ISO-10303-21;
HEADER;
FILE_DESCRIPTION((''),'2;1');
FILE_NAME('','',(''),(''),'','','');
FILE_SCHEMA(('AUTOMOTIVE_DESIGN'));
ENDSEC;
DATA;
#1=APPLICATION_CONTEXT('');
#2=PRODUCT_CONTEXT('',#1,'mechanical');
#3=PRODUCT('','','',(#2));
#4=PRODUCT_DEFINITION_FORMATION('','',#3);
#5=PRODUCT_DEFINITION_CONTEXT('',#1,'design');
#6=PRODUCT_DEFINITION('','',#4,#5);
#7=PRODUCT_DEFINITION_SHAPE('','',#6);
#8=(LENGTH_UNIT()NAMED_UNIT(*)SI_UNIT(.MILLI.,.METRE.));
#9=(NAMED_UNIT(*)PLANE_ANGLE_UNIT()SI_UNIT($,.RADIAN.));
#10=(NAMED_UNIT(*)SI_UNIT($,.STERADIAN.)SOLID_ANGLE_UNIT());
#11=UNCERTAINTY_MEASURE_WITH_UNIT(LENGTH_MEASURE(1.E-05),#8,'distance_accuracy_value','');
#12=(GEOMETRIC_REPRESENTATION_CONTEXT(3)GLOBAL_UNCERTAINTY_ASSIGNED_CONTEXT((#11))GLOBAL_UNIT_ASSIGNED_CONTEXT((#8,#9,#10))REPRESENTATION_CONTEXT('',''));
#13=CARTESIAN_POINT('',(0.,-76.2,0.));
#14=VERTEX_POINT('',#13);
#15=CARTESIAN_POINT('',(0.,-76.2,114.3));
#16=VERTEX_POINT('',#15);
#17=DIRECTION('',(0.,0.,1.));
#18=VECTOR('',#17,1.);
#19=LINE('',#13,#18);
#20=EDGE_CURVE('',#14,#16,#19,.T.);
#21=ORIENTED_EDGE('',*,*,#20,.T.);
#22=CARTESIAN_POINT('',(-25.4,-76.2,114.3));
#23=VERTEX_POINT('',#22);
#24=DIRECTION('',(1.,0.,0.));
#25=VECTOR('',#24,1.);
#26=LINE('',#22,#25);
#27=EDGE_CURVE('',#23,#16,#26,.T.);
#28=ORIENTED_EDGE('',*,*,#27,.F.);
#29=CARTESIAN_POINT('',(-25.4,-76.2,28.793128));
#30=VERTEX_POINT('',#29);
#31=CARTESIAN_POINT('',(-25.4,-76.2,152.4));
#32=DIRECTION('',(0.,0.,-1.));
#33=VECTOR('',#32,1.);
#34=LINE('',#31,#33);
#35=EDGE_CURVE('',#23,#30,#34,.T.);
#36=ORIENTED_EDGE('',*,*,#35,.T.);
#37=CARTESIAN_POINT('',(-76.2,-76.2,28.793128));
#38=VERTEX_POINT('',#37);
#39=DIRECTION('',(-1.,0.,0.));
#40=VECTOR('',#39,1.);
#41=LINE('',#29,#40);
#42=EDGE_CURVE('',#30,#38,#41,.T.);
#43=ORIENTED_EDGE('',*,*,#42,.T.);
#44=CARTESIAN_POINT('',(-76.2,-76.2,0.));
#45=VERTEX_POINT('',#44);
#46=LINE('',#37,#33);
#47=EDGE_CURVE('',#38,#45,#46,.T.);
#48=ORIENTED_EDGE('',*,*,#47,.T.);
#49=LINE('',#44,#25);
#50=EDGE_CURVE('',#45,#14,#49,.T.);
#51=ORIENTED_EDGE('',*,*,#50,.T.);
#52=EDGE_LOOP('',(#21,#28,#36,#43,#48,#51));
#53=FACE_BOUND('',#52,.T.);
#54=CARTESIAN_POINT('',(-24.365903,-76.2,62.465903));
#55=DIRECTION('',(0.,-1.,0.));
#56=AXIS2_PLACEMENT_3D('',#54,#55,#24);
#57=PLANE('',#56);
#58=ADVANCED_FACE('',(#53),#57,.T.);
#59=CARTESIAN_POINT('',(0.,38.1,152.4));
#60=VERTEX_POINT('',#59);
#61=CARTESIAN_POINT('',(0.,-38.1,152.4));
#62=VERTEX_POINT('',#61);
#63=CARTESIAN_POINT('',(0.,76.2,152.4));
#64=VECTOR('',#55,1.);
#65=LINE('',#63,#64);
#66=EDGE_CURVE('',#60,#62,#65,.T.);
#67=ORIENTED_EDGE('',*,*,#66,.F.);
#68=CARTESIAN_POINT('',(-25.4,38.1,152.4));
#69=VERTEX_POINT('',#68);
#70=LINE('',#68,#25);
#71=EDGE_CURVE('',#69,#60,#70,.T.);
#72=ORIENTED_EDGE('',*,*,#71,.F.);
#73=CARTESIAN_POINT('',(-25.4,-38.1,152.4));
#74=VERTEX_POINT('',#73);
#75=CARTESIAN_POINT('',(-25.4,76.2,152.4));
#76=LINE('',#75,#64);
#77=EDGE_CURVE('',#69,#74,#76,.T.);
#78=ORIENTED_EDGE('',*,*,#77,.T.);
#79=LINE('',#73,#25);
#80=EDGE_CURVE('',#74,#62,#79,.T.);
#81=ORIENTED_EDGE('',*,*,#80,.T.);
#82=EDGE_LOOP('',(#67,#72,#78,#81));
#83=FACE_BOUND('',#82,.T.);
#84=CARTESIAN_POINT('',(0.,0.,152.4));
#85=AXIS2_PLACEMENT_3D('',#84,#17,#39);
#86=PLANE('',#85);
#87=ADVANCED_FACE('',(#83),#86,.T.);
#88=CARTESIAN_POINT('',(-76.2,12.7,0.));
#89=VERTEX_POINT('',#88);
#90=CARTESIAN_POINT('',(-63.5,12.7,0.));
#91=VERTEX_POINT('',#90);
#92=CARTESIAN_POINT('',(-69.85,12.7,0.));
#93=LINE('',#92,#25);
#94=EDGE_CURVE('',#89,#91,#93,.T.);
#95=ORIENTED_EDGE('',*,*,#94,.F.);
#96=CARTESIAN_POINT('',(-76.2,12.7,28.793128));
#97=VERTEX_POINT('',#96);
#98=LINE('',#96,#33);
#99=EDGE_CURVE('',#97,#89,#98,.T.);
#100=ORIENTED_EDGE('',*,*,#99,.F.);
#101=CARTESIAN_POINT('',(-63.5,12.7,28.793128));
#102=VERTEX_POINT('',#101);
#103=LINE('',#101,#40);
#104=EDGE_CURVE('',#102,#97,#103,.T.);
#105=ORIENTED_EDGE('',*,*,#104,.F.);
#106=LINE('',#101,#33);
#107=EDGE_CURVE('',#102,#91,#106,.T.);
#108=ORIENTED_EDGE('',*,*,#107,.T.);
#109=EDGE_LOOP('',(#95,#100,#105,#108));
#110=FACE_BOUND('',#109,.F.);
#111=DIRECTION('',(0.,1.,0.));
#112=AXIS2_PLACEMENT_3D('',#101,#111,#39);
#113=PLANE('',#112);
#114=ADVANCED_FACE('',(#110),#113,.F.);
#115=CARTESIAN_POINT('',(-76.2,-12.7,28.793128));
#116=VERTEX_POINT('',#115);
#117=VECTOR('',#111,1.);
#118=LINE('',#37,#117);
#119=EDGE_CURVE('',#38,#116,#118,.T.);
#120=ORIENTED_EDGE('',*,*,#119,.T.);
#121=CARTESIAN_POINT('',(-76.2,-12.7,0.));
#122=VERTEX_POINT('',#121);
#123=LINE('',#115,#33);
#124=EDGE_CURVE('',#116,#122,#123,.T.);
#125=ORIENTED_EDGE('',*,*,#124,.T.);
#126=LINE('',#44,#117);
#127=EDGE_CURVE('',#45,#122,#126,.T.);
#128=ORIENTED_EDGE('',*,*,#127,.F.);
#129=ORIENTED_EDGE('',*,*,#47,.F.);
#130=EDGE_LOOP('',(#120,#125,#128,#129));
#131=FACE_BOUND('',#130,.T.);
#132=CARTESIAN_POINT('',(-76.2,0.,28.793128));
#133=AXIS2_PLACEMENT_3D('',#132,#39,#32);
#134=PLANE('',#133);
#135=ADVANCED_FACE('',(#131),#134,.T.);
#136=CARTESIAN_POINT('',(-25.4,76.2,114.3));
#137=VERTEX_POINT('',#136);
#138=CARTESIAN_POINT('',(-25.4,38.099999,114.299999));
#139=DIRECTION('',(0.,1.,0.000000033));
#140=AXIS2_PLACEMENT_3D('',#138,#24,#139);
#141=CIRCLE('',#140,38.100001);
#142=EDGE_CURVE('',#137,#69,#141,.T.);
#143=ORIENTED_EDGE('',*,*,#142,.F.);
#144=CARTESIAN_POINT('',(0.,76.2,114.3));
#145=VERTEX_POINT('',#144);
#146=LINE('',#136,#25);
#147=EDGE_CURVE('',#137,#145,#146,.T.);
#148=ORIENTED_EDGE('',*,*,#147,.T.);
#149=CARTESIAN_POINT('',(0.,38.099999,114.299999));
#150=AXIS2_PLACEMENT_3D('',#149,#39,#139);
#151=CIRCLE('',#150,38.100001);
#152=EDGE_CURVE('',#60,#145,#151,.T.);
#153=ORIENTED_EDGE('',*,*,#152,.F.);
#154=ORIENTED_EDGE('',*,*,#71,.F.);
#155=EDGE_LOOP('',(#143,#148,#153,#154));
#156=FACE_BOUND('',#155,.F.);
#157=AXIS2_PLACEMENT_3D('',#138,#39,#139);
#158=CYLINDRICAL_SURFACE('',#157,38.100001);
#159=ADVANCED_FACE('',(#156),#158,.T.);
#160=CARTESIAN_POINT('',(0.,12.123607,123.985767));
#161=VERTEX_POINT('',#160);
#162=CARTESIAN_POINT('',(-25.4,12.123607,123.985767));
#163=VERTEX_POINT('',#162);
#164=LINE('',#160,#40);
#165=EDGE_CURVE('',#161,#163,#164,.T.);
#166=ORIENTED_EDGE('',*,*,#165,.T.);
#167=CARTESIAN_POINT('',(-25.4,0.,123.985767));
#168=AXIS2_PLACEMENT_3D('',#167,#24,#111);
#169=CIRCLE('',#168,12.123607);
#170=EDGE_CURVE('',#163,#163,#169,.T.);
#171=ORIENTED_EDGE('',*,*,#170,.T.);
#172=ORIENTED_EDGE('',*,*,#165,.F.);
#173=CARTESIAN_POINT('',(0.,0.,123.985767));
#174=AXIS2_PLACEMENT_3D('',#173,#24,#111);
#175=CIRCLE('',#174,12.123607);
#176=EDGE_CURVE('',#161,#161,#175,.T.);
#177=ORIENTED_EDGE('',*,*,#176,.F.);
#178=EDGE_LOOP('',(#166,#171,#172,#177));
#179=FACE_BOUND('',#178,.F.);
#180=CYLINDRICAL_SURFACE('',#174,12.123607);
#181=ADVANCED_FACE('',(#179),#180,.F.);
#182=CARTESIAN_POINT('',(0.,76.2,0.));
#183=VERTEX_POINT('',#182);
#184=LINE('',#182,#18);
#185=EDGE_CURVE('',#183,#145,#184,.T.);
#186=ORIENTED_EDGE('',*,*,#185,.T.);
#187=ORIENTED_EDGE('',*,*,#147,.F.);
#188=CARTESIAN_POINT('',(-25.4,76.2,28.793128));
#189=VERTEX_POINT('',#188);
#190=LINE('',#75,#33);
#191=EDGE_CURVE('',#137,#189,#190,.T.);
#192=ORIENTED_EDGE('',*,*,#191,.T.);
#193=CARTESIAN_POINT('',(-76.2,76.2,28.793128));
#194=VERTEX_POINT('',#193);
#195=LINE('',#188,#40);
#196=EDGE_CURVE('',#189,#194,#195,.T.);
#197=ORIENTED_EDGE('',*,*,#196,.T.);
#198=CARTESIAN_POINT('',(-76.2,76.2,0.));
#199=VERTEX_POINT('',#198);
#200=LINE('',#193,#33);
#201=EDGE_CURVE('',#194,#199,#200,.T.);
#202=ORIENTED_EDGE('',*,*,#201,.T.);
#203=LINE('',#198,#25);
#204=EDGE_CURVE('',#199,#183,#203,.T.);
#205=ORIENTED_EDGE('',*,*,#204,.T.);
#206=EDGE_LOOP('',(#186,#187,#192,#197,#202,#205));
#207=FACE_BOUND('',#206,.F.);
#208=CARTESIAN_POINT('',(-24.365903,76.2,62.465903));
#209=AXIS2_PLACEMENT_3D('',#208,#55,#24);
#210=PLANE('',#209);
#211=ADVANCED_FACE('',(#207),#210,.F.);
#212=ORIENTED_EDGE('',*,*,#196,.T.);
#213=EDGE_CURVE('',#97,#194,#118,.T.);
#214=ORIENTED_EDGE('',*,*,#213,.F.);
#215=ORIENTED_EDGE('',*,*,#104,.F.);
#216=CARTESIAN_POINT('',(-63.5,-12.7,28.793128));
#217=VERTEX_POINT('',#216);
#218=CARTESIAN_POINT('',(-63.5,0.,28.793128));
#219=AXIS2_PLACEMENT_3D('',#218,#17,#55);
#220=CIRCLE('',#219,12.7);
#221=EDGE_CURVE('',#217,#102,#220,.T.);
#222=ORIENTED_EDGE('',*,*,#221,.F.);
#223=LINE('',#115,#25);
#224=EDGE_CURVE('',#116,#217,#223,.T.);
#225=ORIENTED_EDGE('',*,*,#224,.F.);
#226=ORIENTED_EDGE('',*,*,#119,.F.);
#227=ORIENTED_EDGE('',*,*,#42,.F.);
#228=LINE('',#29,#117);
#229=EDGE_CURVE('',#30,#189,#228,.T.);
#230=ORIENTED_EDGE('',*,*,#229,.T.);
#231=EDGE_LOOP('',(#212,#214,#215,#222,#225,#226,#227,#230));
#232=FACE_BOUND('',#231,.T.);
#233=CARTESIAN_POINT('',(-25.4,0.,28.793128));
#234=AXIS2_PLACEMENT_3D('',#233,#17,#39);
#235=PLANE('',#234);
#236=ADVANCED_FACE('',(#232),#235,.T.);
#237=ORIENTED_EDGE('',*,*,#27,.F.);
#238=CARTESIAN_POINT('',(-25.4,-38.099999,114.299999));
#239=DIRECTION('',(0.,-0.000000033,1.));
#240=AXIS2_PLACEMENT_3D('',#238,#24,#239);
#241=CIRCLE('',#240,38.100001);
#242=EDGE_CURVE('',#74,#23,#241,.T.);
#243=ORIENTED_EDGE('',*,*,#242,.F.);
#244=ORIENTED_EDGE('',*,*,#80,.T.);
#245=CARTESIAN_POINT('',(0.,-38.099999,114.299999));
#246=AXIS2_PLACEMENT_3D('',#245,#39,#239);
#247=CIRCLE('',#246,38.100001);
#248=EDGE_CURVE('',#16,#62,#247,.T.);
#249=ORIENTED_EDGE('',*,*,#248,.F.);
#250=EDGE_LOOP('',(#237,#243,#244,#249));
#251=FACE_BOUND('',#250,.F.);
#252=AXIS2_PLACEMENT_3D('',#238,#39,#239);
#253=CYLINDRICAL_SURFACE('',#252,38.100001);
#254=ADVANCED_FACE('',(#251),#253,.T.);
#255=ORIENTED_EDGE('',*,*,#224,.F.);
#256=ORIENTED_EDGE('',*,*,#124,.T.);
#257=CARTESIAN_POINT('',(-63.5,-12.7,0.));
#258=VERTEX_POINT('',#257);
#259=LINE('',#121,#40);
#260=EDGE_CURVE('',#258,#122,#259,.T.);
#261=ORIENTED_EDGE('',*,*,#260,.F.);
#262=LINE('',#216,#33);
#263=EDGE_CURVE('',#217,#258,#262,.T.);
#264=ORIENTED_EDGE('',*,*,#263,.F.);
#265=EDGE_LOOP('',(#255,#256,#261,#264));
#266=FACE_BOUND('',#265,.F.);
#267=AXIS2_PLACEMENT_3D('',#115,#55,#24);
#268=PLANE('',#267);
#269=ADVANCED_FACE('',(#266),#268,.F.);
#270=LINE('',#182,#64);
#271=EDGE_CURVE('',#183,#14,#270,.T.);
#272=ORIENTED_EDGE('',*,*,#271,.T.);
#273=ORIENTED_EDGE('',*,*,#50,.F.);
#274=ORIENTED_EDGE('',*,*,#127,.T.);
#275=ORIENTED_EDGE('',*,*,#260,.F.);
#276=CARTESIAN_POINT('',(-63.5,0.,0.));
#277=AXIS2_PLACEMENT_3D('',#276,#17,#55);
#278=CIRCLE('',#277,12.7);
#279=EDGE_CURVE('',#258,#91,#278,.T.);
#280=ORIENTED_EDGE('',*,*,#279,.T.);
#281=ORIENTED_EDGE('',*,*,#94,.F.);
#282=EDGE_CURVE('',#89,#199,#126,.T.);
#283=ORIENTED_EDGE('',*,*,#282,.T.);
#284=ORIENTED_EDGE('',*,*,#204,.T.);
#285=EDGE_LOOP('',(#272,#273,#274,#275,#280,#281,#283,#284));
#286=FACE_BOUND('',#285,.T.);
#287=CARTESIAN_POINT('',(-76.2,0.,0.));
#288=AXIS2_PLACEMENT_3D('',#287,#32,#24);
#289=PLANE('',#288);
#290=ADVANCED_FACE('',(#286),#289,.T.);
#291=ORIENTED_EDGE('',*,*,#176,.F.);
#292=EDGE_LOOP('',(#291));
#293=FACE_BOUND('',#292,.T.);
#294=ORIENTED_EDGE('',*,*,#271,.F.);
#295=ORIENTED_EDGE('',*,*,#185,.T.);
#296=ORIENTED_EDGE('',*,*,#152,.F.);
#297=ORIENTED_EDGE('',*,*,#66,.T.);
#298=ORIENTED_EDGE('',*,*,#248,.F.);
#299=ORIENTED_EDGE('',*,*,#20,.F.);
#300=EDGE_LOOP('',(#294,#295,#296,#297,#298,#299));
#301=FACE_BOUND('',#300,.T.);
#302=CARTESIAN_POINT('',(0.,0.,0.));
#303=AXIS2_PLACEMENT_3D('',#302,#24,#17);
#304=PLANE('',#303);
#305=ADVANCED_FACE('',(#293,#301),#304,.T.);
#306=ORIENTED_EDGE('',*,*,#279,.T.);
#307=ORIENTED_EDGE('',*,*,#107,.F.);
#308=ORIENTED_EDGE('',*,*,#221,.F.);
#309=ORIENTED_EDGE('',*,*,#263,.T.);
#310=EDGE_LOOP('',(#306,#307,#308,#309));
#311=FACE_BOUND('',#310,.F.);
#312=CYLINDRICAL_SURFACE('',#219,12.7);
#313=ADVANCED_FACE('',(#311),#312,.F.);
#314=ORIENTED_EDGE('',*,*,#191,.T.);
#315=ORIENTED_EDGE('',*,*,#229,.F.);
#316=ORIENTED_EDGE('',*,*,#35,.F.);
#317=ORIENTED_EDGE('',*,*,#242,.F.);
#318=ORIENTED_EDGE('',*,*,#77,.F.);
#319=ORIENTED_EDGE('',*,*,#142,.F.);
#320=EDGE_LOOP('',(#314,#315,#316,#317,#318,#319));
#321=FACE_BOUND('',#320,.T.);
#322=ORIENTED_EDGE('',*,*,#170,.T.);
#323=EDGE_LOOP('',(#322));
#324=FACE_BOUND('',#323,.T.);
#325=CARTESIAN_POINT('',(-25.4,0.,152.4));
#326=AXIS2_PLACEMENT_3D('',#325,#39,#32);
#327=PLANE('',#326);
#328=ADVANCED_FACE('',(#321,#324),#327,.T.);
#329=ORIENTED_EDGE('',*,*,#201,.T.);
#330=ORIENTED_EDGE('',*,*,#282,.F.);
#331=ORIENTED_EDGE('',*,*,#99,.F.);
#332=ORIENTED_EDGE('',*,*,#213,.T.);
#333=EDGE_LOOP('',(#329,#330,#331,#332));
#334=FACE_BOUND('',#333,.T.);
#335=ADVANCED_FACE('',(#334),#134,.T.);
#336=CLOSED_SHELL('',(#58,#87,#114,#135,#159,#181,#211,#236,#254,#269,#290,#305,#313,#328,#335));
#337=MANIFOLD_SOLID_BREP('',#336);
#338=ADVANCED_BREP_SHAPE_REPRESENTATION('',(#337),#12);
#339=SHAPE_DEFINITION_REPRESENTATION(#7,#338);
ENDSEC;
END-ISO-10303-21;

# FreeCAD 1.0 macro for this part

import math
import FreeCAD as App
import Part
import Sketcher
Q = App.Units.Quantity

doc = App.newDocument("Part")
body = doc.addObject("PartDesign::Body", "Body")

# Sketch on XZ plane
sketch1 = body.newObject("Sketcher::SketchObject", "Sketch")
sketch1.AttachmentSupport = (doc.getObject("XZ_Plane"), [""])
sketch1.MapMode = "FlatFace"
sketch1.addGeometry([
    Part.LineSegment(App.Vector(-76, 0, 0), App.Vector(0, 0, 0)),  # 0
    Part.LineSegment(App.Vector(0, 0, 0), App.Vector(0, 152, 0)),  # 1
    Part.LineSegment(App.Vector(0, 152, 0), App.Vector(-25, 152, 0)),  # 2
    Part.LineSegment(App.Vector(-25, 152, 0), App.Vector(-25, 29, 0)),  # 3
    Part.LineSegment(App.Vector(-25, 29, 0), App.Vector(-76, 29, 0)),  # 4
    Part.LineSegment(App.Vector(-76, 29, 0), App.Vector(-76, 0, 0)),  # 5
], False)
sketch1.addConstraint([
    Sketcher.Constraint("Coincident", 0, 2, 1, 1),
    Sketcher.Constraint("Coincident", 1, 2, 2, 1),
    Sketcher.Constraint("Coincident", 2, 2, 3, 1),
    Sketcher.Constraint("Coincident", 3, 2, 4, 1),
    Sketcher.Constraint("Coincident", 4, 2, 5, 1),
    Sketcher.Constraint("Coincident", 5, 2, 0, 1),
    Sketcher.Constraint("Horizontal", 0),
    Sketcher.Constraint("Vertical", 1),
    Sketcher.Constraint("Horizontal", 2),
    Sketcher.Constraint("Vertical", 3),
    Sketcher.Constraint("Horizontal", 4),
    Sketcher.Constraint("Vertical", 5),
    Sketcher.Constraint("Coincident", 0, 2, -1, 1),
    Sketcher.Constraint("DistanceX", 0, 1, 0, 2, Q("3 in")),
    Sketcher.Constraint("DistanceX", 2, 2, 2, 1, Q("1 in")),
    Sketcher.Constraint("DistanceY", 1, 1, 1, 2, Q("6 in")),
    Sketcher.Constraint("DistanceY", 3, 2, 3, 1, Q("123.606872 mm")),
])
pad1 = body.newObject("PartDesign::Pad", "Pad")
pad1.Profile = sketch1
pad1.Length = Q("6 in")
pad1.Midplane = True

# Sketch on YZ plane
sketch2 = body.newObject("Sketcher::SketchObject", "Sketch001")
sketch2.AttachmentSupport = (doc.getObject("YZ_Plane"), [""])
sketch2.MapMode = "FlatFace"
sketch2.addGeometry([
    Part.LineSegment(App.Vector(-76, 152, 0), App.Vector(-76, 0, 0)),
    Part.LineSegment(App.Vector(-76, 0, 0), App.Vector(76, 0, 0)),
    Part.LineSegment(App.Vector(76, 0, 0), App.Vector(76, 152, 0)),
    Part.LineSegment(App.Vector(76, 152, 0), App.Vector(-76, 152, 0)),
], False)
sketch2.addConstraint([
    Sketcher.Constraint("Coincident", 0, 2, 1, 1),
    Sketcher.Constraint("Coincident", 1, 2, 2, 1),
    Sketcher.Constraint("Coincident", 2, 2, 3, 1),
    Sketcher.Constraint("Coincident", 3, 2, 0, 1),
    Sketcher.Constraint("Vertical", 0),
    Sketcher.Constraint("Horizontal", 1),
    Sketcher.Constraint("Vertical", 2),
    Sketcher.Constraint("Horizontal", 3),
    Sketcher.Constraint("Symmetric", 0, 2, 1, 2, -1, 1),
    Sketcher.Constraint("Equal", 3, 0),
    Sketcher.Constraint("DistanceX", 1, 1, 1, 2, Q("6 in")),
])
pocket1 = body.newObject("PartDesign::Pocket", "Pocket")
pocket1.Profile = sketch2
pocket1.Length = Q("1 in")
pocket1.Reversed = True

# Sketch on YZ plane
sketch3 = body.newObject("Sketcher::SketchObject", "Sketch002")
sketch3.AttachmentSupport = (doc.getObject("YZ_Plane"), [""])
sketch3.MapMode = "FlatFace"
sketch3.addGeometry(Part.Circle(App.Vector(0, 124, 0), App.Vector(0, 0, 1), 12), False)
sketch3.addConstraint([
    Sketcher.Constraint("PointOnObject", 0, 3, -2),
    Sketcher.Constraint("Diameter", 0, Q("24.247214 mm")),
    Sketcher.Constraint("DistanceY", -1, 1, 0, 3, Q("123.985767 mm")),
])
pocket2 = body.newObject("PartDesign::Pocket", "Pocket001")
pocket2.Profile = sketch3
pocket2.Type = "ThroughAll"

# Sketch on XY plane
sketch4 = body.newObject("Sketcher::SketchObject", "Sketch003")
sketch4.AttachmentSupport = (doc.getObject("XY_Plane"), [""])
sketch4.MapMode = "FlatFace"
sketch4.AttachmentOffset = App.Placement(App.Vector(0, 0, 28.793128), App.Rotation())
sketch4.addGeometry([
    Part.LineSegment(App.Vector(-64, 13, 0), App.Vector(-76, 13, 0)),
    Part.LineSegment(App.Vector(-76, 13, 0), App.Vector(-76, -13, 0)),
    Part.LineSegment(App.Vector(-76, -13, 0), App.Vector(-64, -13, 0)),
    Part.ArcOfCircle(Part.Circle(App.Vector(-64, 0, 0), App.Vector(0, 0, 1), 13), math.radians(-90), math.radians(90)),
], False)
sketch4.addConstraint([
    Sketcher.Constraint("Coincident", 0, 2, 1, 1),
    Sketcher.Constraint("Coincident", 1, 2, 2, 1),
    Sketcher.Constraint("Tangent", 2, 2, 3, 1),
    Sketcher.Constraint("Tangent", 3, 2, 0, 1),
    Sketcher.Constraint("Horizontal", 0),
    Sketcher.Constraint("Vertical", 1),
    Sketcher.Constraint("Horizontal", 2),
    Sketcher.Constraint("PointOnObject", 3, 3, -1),
    Sketcher.Constraint("Radius", 3, Q("0.5 in")),
    Sketcher.Constraint("DistanceX", 0, 2, 0, 1, Q("0.5 in")),
    Sketcher.Constraint("DistanceX", 0, 2, -1, 1, Q("3 in")),
])
pocket3 = body.newObject("PartDesign::Pocket", "Pocket002")
pocket3.Profile = sketch4
pocket3.Type = "ThroughAll"

# Sketch on YZ plane
sketch5 = body.newObject("Sketcher::SketchObject", "Sketch004")
sketch5.AttachmentSupport = (doc.getObject("YZ_Plane"), [""])
sketch5.MapMode = "FlatFace"
sketch5.AttachmentOffset = App.Placement(App.Vector(0, 0, -1 * 25.4), App.Rotation())
sketch5.addGeometry([
    Part.ArcOfCircle(Part.Circle(App.Vector(-38, 114, 0), App.Vector(0, 0, 1), 38), math.radians(90), math.radians(180)),  # 0
    Part.LineSegment(App.Vector(-76, 114, 0), App.Vector(-76, 152, 0)),  # 1
    Part.LineSegment(App.Vector(-76, 152, 0), App.Vector(-38, 152, 0)),  # 2
    Part.ArcOfCircle(Part.Circle(App.Vector(38, 114, 0), App.Vector(0, 0, 1), 38), math.radians(0), math.radians(90)),  # 3
    Part.LineSegment(App.Vector(38, 152, 0), App.Vector(76, 152, 0)),  # 4
    Part.LineSegment(App.Vector(76, 152, 0), App.Vector(76, 114, 0)),  # 5
], False)
sketch5.addConstraint([
    Sketcher.Constraint("Tangent", 0, 2, 1, 1),
    Sketcher.Constraint("Coincident", 1, 2, 2, 1),
    Sketcher.Constraint("Tangent", 2, 2, 0, 1),
    Sketcher.Constraint("Tangent", 3, 2, 4, 1),
    Sketcher.Constraint("Coincident", 4, 2, 5, 1),
    Sketcher.Constraint("Tangent", 5, 2, 3, 1),
    Sketcher.Constraint("Vertical", 1),
    Sketcher.Constraint("Horizontal", 2),
    Sketcher.Constraint("Horizontal", 4),
    Sketcher.Constraint("Vertical", 5),
    Sketcher.Constraint("Equal", 0, 3),
    Sketcher.Constraint("Symmetric", 0, 3, 3, 3, -2),
    Sketcher.Constraint("Radius", 0, Q("1.5 in")),
    Sketcher.Constraint("DistanceX", 0, 2, -1, 1, Q("3 in")),
    Sketcher.Constraint("DistanceY", -1, 1, 1, 2, Q("6 in")),
])
pocket4 = body.newObject("PartDesign::Pocket", "Pocket003")
pocket4.Profile = sketch5
pocket4.Type = "ThroughAll"
pocket4.Reversed = True

doc.recompute()
